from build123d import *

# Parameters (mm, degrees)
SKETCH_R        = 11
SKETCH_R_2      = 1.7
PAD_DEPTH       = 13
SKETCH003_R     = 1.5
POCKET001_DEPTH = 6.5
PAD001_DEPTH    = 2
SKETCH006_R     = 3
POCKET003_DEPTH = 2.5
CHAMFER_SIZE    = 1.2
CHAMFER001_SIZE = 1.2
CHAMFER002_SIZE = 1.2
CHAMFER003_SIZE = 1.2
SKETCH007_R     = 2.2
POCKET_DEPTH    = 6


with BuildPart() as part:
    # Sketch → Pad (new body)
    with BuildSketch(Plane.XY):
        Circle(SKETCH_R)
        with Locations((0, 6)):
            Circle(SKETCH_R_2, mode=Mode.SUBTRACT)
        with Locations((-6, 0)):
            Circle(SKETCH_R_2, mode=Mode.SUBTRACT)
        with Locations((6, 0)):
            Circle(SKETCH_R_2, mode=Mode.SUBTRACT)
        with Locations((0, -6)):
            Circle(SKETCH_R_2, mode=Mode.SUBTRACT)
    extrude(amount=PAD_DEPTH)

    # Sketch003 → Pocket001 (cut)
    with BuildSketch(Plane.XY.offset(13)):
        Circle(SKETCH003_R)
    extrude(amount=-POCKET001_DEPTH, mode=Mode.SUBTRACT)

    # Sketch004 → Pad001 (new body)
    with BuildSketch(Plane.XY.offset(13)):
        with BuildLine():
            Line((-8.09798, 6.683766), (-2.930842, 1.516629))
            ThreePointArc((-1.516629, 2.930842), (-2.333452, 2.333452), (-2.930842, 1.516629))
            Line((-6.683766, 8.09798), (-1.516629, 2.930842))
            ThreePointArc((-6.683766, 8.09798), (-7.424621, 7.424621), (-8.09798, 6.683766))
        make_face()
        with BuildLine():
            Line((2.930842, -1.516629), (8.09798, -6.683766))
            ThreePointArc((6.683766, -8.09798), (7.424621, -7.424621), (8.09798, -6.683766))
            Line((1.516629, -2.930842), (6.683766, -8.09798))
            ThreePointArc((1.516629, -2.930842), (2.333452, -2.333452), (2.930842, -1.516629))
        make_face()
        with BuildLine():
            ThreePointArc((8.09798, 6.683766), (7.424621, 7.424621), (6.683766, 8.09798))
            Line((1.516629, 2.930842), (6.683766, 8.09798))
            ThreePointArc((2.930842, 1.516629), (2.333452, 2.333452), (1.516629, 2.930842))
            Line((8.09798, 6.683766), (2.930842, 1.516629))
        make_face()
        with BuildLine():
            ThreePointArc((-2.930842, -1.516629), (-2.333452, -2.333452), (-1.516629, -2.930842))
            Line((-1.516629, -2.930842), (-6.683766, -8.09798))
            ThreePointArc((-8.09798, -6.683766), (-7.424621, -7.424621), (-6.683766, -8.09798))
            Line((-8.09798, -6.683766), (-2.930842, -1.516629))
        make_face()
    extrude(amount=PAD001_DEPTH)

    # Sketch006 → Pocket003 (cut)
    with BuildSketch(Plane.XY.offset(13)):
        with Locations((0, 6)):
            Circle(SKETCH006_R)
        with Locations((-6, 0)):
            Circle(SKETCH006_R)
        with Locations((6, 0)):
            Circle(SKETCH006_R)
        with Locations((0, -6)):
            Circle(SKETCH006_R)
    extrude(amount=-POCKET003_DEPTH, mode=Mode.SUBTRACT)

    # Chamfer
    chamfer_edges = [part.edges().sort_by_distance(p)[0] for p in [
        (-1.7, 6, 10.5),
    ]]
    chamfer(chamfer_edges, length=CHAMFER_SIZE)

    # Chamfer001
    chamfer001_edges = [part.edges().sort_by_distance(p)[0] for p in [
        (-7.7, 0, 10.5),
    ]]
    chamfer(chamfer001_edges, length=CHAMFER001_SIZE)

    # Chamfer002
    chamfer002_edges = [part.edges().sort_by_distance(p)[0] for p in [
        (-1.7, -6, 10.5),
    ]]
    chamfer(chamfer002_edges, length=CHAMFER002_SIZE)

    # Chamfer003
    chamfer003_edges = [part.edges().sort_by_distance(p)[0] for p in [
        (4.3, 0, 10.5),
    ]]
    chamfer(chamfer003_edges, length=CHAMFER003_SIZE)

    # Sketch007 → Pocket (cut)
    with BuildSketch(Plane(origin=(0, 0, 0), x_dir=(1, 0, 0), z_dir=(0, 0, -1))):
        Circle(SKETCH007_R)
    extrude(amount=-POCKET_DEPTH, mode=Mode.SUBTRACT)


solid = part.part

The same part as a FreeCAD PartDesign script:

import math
import FreeCAD as App
import Part
import Sketcher

V = App.Vector


def edges_at(feature, points):
    """Names of the edges that pass closest to the given points."""
    edges = feature.Shape.Edges
    near = lambda p: min(range(len(edges)), key=lambda i: edges[i].distToShape(Part.Vertex(*p))[0])
    return sorted({f"Edge{near(p) + 1}" for p in points})

doc = App.newDocument("Part")
body = doc.addObject("PartDesign::Body", "Body")

# Sketch on XY plane
sketch1 = doc.addObject("Sketcher::SketchObject", "Sketch")
body.addObject(sketch1)
sketch1.AttachmentSupport = (doc.XY_Plane, [""])
sketch1.MapMode = "FlatFace"
sketch1.addGeometry([
    Part.Circle(V(0, 0, 0), V(0, 0, 1), 11),  # 0
    Part.Circle(V(0, -6, 0), V(0, 0, 1), 1.7),  # 1
    Part.Circle(V(-6, 0, 0), V(0, 0, 1), 1.7),  # 2
    Part.Circle(V(6, 0, 0), V(0, 0, 1), 1.7),  # 3
    Part.Circle(V(0, 6, 0), V(0, 0, 1), 1.7),  # 4
], False)
sketch1.addConstraint([
    Sketcher.Constraint("Coincident", 0, 3, -1, 1),
    Sketcher.Constraint("Equal", 1, 2),
    Sketcher.Constraint("Equal", 2, 3),
    Sketcher.Constraint("Equal", 3, 4),
    Sketcher.Constraint("Symmetric", 2, 3, 3, 3, -1, 1),
    Sketcher.Constraint("Symmetric", 1, 3, 4, 3, -1, 1),
    Sketcher.Constraint("PointOnObject", 1, 3, -2),
    Sketcher.Constraint("PointOnObject", 2, 3, -1),
    Sketcher.Constraint("Diameter", 0, 22.0),
    Sketcher.Constraint("Diameter", 1, 3.4),
    Sketcher.Constraint("DistanceY", 1, 3, -1, 1, 6.0),
    Sketcher.Constraint("DistanceX", 2, 3, -1, 1, 6.0),
])
pad1 = doc.addObject("PartDesign::Pad", "Pad")
body.addObject(pad1)
pad1.Profile = sketch1
pad1.Length = 13

# Sketch on XY plane
sketch2 = doc.addObject("Sketcher::SketchObject", "Sketch001")
body.addObject(sketch2)
sketch2.AttachmentSupport = (doc.XY_Plane, [""])
sketch2.MapMode = "FlatFace"
sketch2.AttachmentOffset = App.Placement(V(0, 0, 13), App.Rotation())
sketch2.addGeometry(Part.Circle(V(0, 0, 0), V(0, 0, 1), 1.5), False)
sketch2.addConstraint([
    Sketcher.Constraint("Coincident", 0, 3, -1, 1),
    Sketcher.Constraint("Diameter", 0, 3.0),
])
pocket1 = doc.addObject("PartDesign::Pocket", "Pocket")
body.addObject(pocket1)
pocket1.Profile = sketch2
pocket1.Length = 6.5

# Sketch on XY plane
sketch3 = doc.addObject("Sketcher::SketchObject", "Sketch002")
body.addObject(sketch3)
sketch3.AttachmentSupport = (doc.XY_Plane, [""])
sketch3.MapMode = "FlatFace"
sketch3.AttachmentOffset = App.Placement(V(0, 0, 13), App.Rotation())
sketch3.addGeometry([
    Part.LineSegment(V(-8.09798, 6.683766, 0), V(-2.930842, 1.516629, 0)),  # 0
    Part.ArcOfCircle(Part.Circle(V(0.000004, -0.000004, 0), V(0, 0, 1), 3.300006), math.radians(117.360336), math.radians(152.639664)),  # 1
    Part.LineSegment(V(-1.516629, 2.930842, 0), V(-6.683766, 8.09798, 0)),  # 2
    Part.ArcOfCircle(Part.Circle(V(0.000104, -0.000104, 0), V(0, 0, 1), 10.500147), math.radians(129.535051), math.radians(140.464949)),  # 3
    Part.LineSegment(V(8.09798, -6.683766, 0), V(2.930842, -1.516629, 0)),  # 4
    Part.ArcOfCircle(Part.Circle(V(-0.000004, 0.000004, 0), V(0, 0, 1), 3.300006), math.radians(-62.639664), math.radians(-27.360336)),  # 5
    Part.LineSegment(V(1.516629, -2.930842, 0), V(6.683766, -8.09798, 0)),  # 6
    Part.ArcOfCircle(Part.Circle(V(-0.000104, 0.000104, 0), V(0, 0, 1), 10.500147), math.radians(-50.464949), math.radians(-39.535051)),  # 7
    Part.ArcOfCircle(Part.Circle(V(-0.000104, -0.000104, 0), V(0, 0, 1), 10.500147), math.radians(39.535051), math.radians(50.464949)),  # 8
    Part.LineSegment(V(6.683766, 8.09798, 0), V(1.516629, 2.930842, 0)),  # 9
    Part.ArcOfCircle(Part.Circle(V(-0.000004, -0.000004, 0), V(0, 0, 1), 3.300006), math.radians(27.360336), math.radians(62.639664)),  # 10
    Part.LineSegment(V(2.930842, 1.516629, 0), V(8.09798, 6.683766, 0)),  # 11
    Part.ArcOfCircle(Part.Circle(V(0.000004, 0.000004, 0), V(0, 0, 1), 3.300006), math.radians(-152.639664), math.radians(-117.360336)),  # 12
    Part.LineSegment(V(-2.930842, -1.516629, 0), V(-8.09798, -6.683766, 0)),  # 13
    Part.ArcOfCircle(Part.Circle(V(0.000104, 0.000104, 0), V(0, 0, 1), 10.500147), math.radians(-140.464949), math.radians(-129.535051)),  # 14
    Part.LineSegment(V(-6.683766, -8.09798, 0), V(-1.516629, -2.930842, 0)),  # 15
], False)
sketch3.addConstraint([
    Sketcher.Constraint("Coincident", 0, 2, 1, 2),
    Sketcher.Constraint("Coincident", 1, 1, 2, 1),
    Sketcher.Constraint("Coincident", 2, 2, 3, 1),
    Sketcher.Constraint("Coincident", 3, 2, 0, 1),
    Sketcher.Constraint("Coincident", 4, 2, 5, 2),
    Sketcher.Constraint("Coincident", 5, 1, 6, 1),
    Sketcher.Constraint("Coincident", 6, 2, 7, 1),
    Sketcher.Constraint("Coincident", 7, 2, 4, 1),
    Sketcher.Constraint("Coincident", 8, 2, 9, 1),
    Sketcher.Constraint("Coincident", 9, 2, 10, 2),
    Sketcher.Constraint("Coincident", 10, 1, 11, 1),
    Sketcher.Constraint("Coincident", 11, 2, 8, 1),
    Sketcher.Constraint("Coincident", 12, 1, 13, 1),
    Sketcher.Constraint("Coincident", 13, 2, 14, 1),
    Sketcher.Constraint("Coincident", 14, 2, 15, 1),
    Sketcher.Constraint("Coincident", 15, 2, 12, 2),
    Sketcher.Constraint("Coincident", 1, 3, -1, 1),
    Sketcher.Constraint("Coincident", 5, 3, -1, 1),
    Sketcher.Constraint("Coincident", 10, 3, -1, 1),
    Sketcher.Constraint("Coincident", 12, 3, -1, 1),
    Sketcher.Constraint("Equal", 1, 5),
    Sketcher.Constraint("Equal", 3, 7),
    Sketcher.Constraint("Equal", 7, 8),
    Sketcher.Constraint("Equal", 5, 10),
    Sketcher.Constraint("Equal", 10, 12),
    Sketcher.Constraint("Equal", 8, 14),
    Sketcher.Constraint("Symmetric", 3, 3, 7, 3, -1, 1),
    Sketcher.Constraint("Symmetric", 8, 3, 14, 3, -1, 1),
    Sketcher.Constraint("Symmetric", 3, 3, 8, 3, -2),
    Sketcher.Constraint("Parallel", 0, 2),
    Sketcher.Constraint("Parallel", 2, 4),
    Sketcher.Constraint("Parallel", 4, 6),
    Sketcher.Constraint("Perpendicular", 6, 9),
    Sketcher.Constraint("Parallel", 9, 11),
    Sketcher.Constraint("Parallel", 11, 13),
    Sketcher.Constraint("Parallel", 13, 15),
    Sketcher.Constraint("Horizontal", 2, 2, 8, 2),
    Sketcher.Constraint("Horizontal", 1, 1, 9, 2),
    Sketcher.Constraint("Horizontal", 0, 2, 10, 1),
    Sketcher.Constraint("Horizontal", 4, 2, 12, 1),
    Sketcher.Constraint("Horizontal", 6, 2, 14, 2),
    Sketcher.Constraint("Vertical", 6, 2, 8, 2),
    Sketcher.Constraint("Vertical", 4, 2, 10, 1),
    Sketcher.Constraint("Equal", 0, 2),
    Sketcher.Constraint("Radius", 1, 3.300006),
    Sketcher.Constraint("Radius", 3, 10.500147),
    Sketcher.Constraint("DistanceY", -1, 1, 0, 2, 1.516629),
    Sketcher.Constraint("DistanceX", 1, 1, -1, 1, 1.516629),
    Sketcher.Constraint("DistanceY", -1, 1, 2, 2, 8.09798),
])
pad2 = doc.addObject("PartDesign::Pad", "Pad001")
body.addObject(pad2)
pad2.Profile = sketch3
pad2.Length = 2

# Sketch on XY plane
sketch4 = doc.addObject("Sketcher::SketchObject", "Sketch003")
body.addObject(sketch4)
sketch4.AttachmentSupport = (doc.XY_Plane, [""])
sketch4.MapMode = "FlatFace"
sketch4.AttachmentOffset = App.Placement(V(0, 0, 13), App.Rotation())
sketch4.addGeometry([
    Part.Circle(V(0, 6, 0), V(0, 0, 1), 3),
    Part.Circle(V(-6, 0, 0), V(0, 0, 1), 3),
    Part.Circle(V(6, 0, 0), V(0, 0, 1), 3),
    Part.Circle(V(0, -6, 0), V(0, 0, 1), 3),
], False)
sketch4.addConstraint([
    Sketcher.Constraint("Equal", 0, 1),
    Sketcher.Constraint("Equal", 1, 2),
    Sketcher.Constraint("Equal", 2, 3),
    Sketcher.Constraint("Symmetric", 1, 3, 2, 3, -1, 1),
    Sketcher.Constraint("Symmetric", 0, 3, 3, 3, -1, 1),
    Sketcher.Constraint("PointOnObject", 0, 3, -2),
    Sketcher.Constraint("PointOnObject", 1, 3, -1),
    Sketcher.Constraint("Diameter", 0, 6.0),
    Sketcher.Constraint("DistanceY", -1, 1, 0, 3, 6.0),
    Sketcher.Constraint("DistanceX", 1, 3, -1, 1, 6.0),
])
pocket2 = doc.addObject("PartDesign::Pocket", "Pocket001")
body.addObject(pocket2)
pocket2.Profile = sketch4
pocket2.Length = 2.5
doc.recompute()

chamfer = doc.addObject("PartDesign::Chamfer", "Chamfer")
body.addObject(chamfer)
chamfer.Base = (pocket2, edges_at(pocket2, [(-1.7, 6, 10.5)]))
chamfer.Size = 1.2
doc.recompute()

chamfer2 = doc.addObject("PartDesign::Chamfer", "Chamfer001")
body.addObject(chamfer2)
chamfer2.Base = (chamfer, edges_at(chamfer, [(-7.7, 0, 10.5)]))
chamfer2.Size = 1.2
doc.recompute()

chamfer3 = doc.addObject("PartDesign::Chamfer", "Chamfer002")
body.addObject(chamfer3)
chamfer3.Base = (chamfer2, edges_at(chamfer2, [(-1.7, -6, 10.5)]))
chamfer3.Size = 1.2
doc.recompute()

chamfer4 = doc.addObject("PartDesign::Chamfer", "Chamfer003")
body.addObject(chamfer4)
chamfer4.Base = (chamfer3, edges_at(chamfer3, [(4.3, 0, 10.5)]))
chamfer4.Size = 1.2

# Sketch on XY plane
sketch5 = doc.addObject("Sketcher::SketchObject", "Sketch004")
body.addObject(sketch5)
sketch5.AttachmentSupport = (doc.XY_Plane, [""])
sketch5.MapMode = "FlatFace"
sketch5.addGeometry(Part.Circle(V(0, 0, 0), V(0, 0, 1), 2.2), False)
sketch5.addConstraint([
    Sketcher.Constraint("Coincident", 0, 3, -1, 1),
    Sketcher.Constraint("Diameter", 0, 4.4),
])
pocket3 = doc.addObject("PartDesign::Pocket", "Pocket002")
body.addObject(pocket3)
pocket3.Profile = sketch5
pocket3.Length = 6
pocket3.Reversed = True

doc.recompute()
